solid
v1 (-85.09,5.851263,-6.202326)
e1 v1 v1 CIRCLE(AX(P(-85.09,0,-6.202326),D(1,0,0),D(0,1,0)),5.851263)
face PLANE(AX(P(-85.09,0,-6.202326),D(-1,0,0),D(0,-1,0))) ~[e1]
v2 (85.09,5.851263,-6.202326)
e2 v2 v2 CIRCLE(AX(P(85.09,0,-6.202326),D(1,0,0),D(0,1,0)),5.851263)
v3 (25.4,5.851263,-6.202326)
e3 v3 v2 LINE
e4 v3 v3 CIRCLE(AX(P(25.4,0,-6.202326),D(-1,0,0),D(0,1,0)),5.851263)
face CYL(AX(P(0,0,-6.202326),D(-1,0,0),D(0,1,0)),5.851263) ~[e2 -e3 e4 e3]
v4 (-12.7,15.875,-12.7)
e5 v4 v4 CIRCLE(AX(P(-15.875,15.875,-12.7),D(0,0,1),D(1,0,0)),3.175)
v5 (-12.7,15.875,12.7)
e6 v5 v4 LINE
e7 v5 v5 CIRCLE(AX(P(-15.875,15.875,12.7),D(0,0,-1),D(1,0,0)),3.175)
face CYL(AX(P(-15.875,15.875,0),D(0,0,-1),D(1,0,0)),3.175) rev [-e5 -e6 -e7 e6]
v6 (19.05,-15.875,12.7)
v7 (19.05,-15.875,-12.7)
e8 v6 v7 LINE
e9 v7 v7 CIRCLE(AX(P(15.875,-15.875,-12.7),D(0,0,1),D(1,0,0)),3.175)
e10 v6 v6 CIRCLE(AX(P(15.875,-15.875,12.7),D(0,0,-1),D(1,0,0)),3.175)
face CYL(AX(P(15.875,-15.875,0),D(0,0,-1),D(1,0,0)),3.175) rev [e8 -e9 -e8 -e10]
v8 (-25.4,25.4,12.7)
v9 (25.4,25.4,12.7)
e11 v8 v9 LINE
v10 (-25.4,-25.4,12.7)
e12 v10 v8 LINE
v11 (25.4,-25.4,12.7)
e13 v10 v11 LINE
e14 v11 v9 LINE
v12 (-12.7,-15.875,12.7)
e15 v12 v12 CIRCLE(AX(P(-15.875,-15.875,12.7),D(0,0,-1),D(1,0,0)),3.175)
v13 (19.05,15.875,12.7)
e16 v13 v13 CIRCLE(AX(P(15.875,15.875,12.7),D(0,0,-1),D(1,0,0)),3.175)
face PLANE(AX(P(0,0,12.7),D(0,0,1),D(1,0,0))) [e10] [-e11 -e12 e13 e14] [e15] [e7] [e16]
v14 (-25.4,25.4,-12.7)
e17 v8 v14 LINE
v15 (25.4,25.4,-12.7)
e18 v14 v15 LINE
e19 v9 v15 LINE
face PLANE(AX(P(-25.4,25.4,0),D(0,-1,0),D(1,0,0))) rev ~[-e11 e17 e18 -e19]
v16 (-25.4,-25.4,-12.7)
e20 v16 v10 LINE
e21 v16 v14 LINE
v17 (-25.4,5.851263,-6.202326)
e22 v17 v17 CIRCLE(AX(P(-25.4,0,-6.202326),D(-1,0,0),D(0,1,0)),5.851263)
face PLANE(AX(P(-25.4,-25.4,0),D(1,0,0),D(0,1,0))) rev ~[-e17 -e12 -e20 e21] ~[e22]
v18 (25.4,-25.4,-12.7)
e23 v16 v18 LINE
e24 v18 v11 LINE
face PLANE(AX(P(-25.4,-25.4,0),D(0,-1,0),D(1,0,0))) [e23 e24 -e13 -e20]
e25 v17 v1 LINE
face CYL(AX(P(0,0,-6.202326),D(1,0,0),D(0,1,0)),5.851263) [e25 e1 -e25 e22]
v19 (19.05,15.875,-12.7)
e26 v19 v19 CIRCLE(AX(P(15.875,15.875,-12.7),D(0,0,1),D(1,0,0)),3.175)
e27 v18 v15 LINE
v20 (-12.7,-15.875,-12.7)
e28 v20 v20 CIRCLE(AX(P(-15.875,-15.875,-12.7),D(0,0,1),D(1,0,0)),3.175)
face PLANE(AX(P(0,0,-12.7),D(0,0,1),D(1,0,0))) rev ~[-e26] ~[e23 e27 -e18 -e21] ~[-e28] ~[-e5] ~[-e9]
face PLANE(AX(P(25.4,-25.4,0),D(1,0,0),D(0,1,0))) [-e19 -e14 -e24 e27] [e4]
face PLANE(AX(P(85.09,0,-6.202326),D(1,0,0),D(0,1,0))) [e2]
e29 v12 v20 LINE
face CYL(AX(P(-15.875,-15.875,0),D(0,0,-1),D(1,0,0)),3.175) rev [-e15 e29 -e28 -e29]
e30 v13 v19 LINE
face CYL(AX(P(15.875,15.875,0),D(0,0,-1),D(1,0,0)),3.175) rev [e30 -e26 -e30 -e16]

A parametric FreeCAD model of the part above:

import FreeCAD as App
import Part
import Sketcher
from FreeCAD import Vector
Q = App.Units.Quantity


def add_polygon(sketch, points):
    """Adds a closed chain of lines whose ends are joined by coincident constraints."""
    first, n = sketch.GeometryCount, len(points)
    for a, b in zip(points, points[1:] + points[:1]):
        sketch.addGeometry(Part.LineSegment(App.Vector(*a, 0), App.Vector(*b, 0)), False)
    for i in range(n):
        sketch.addConstraint(Sketcher.Constraint("Coincident", first + i, 2, first + (i + 1) % n, 1))

doc = App.newDocument("Part")
params = doc.addObject("Spreadsheet::Sheet", "Params")
for row, (alias, value) in enumerate([
    ("sketch1_diameter", "0.25 in"),
    ("sketch1_width", "2 in"),
    ("pad1_length", "1 in"),
    ("pad2_length", "3.35 in"),
], start=1):
    params.set(f"A{row}", alias)
    params.set(f"B{row}", "=" + value)
    params.setAlias(f"B{row}", alias)

body = doc.addObject("PartDesign::Body", "Body")

# Sketch on XY plane
sketch1 = body.newObject("Sketcher::SketchObject", "Sketch")
sketch1.AttachmentSupport = (doc.getObject("XY_Plane"), [""])
sketch1.MapMode = "FlatFace"
add_polygon(sketch1, [(-25.4, 25.4), (-25.4, -25.4), (25.4, -25.4), (25.4, 25.4)])  # lines 0-3
sketch1.addGeometry(Part.Circle(Vector(-15.875, -15.875, 0), Vector(0, 0, 1), 3.175), False)  # 4
sketch1.addGeometry(Part.Circle(Vector(15.875, -15.875, 0), Vector(0, 0, 1), 3.175), False)  # 5
sketch1.addGeometry(Part.Circle(Vector(-15.875, 15.875, 0), Vector(0, 0, 1), 3.175), False)  # 6
sketch1.addGeometry(Part.Circle(Vector(15.875, 15.875, 0), Vector(0, 0, 1), 3.175), False)  # 7
sketch1.addConstraint([
    Sketcher.Constraint("Vertical", 0),
    Sketcher.Constraint("Horizontal", 1),
    Sketcher.Constraint("Vertical", 2),
    Sketcher.Constraint("Horizontal", 3),
    Sketcher.Constraint("Equal", 4, 5),
    Sketcher.Constraint("Equal", 5, 6),
    Sketcher.Constraint("Equal", 6, 7),
    Sketcher.Constraint("Symmetric", 5, 3, 6, 3, -1, 1),
    Sketcher.Constraint("Symmetric", 4, 3, 7, 3, -1, 1),
    Sketcher.Constraint("Symmetric", 0, 2, 2, 2, -1, 1),
    Sketcher.Constraint("Symmetric", 4, 3, 5, 3, -2),
    Sketcher.Constraint("Equal", 3, 0),
    Sketcher.Constraint("Diameter", 4, Q("0.25 in")),
    Sketcher.Constraint("DistanceX", 1, 1, 1, 2, Q("2 in")),
    Sketcher.Constraint("DistanceX", 4, 3, 5, 3, Q("1.25 in")),
    Sketcher.Constraint("DistanceY", 4, 3, 6, 3, Q("1.25 in")),
])
sketch1.setExpression("Constraints[16]", "Params.sketch1_diameter")
sketch1.setExpression("Constraints[17]", "Params.sketch1_width")
pad1 = body.newObject("PartDesign::Pad", "Pad")
pad1.Profile = sketch1
pad1.setExpression("Length", "Params.pad1_length")
pad1.Midplane = True

# Sketch on YZ plane
sketch2 = body.newObject("Sketcher::SketchObject", "Sketch001")
sketch2.AttachmentSupport = (doc.getObject("YZ_Plane"), [""])
sketch2.MapMode = "FlatFace"
sketch2.addGeometry(Part.Circle(Vector(0, -6.202326, 0), Vector(0, 0, 1), 5.851263), False)
sketch2.addConstraint([
    Sketcher.Constraint("PointOnObject", 0, 3, -2),
    Sketcher.Constraint("Diameter", 0, 11.702526),
    Sketcher.Constraint("DistanceY", 0, 3, -1, 1, 6.202326),
])
pad2 = body.newObject("PartDesign::Pad", "Pad001")
pad2.Profile = sketch2
pad2.setExpression("Length", "Params.pad2_length")
body2 = doc.addObject("PartDesign::Body", "Body001")
doc.recompute()

body2.BaseFeature = body
doc.recompute()

mirroring = doc.addObject("Part::Mirroring", "Mirroring")
mirroring.Source = body
mirroring.Base = Vector(0, 0, 0)
mirroring.Normal = Vector(1, 0, 0)
body3 = doc.addObject("PartDesign::Body", "Body002")
body3.BaseFeature = mirroring
boolean = body2.newObject("PartDesign::Boolean", "Boolean")
boolean.Type = "Fuse"
boolean.addObjects([body3])
doc.recompute()
mirroring.Visibility = False

doc.recompute()
